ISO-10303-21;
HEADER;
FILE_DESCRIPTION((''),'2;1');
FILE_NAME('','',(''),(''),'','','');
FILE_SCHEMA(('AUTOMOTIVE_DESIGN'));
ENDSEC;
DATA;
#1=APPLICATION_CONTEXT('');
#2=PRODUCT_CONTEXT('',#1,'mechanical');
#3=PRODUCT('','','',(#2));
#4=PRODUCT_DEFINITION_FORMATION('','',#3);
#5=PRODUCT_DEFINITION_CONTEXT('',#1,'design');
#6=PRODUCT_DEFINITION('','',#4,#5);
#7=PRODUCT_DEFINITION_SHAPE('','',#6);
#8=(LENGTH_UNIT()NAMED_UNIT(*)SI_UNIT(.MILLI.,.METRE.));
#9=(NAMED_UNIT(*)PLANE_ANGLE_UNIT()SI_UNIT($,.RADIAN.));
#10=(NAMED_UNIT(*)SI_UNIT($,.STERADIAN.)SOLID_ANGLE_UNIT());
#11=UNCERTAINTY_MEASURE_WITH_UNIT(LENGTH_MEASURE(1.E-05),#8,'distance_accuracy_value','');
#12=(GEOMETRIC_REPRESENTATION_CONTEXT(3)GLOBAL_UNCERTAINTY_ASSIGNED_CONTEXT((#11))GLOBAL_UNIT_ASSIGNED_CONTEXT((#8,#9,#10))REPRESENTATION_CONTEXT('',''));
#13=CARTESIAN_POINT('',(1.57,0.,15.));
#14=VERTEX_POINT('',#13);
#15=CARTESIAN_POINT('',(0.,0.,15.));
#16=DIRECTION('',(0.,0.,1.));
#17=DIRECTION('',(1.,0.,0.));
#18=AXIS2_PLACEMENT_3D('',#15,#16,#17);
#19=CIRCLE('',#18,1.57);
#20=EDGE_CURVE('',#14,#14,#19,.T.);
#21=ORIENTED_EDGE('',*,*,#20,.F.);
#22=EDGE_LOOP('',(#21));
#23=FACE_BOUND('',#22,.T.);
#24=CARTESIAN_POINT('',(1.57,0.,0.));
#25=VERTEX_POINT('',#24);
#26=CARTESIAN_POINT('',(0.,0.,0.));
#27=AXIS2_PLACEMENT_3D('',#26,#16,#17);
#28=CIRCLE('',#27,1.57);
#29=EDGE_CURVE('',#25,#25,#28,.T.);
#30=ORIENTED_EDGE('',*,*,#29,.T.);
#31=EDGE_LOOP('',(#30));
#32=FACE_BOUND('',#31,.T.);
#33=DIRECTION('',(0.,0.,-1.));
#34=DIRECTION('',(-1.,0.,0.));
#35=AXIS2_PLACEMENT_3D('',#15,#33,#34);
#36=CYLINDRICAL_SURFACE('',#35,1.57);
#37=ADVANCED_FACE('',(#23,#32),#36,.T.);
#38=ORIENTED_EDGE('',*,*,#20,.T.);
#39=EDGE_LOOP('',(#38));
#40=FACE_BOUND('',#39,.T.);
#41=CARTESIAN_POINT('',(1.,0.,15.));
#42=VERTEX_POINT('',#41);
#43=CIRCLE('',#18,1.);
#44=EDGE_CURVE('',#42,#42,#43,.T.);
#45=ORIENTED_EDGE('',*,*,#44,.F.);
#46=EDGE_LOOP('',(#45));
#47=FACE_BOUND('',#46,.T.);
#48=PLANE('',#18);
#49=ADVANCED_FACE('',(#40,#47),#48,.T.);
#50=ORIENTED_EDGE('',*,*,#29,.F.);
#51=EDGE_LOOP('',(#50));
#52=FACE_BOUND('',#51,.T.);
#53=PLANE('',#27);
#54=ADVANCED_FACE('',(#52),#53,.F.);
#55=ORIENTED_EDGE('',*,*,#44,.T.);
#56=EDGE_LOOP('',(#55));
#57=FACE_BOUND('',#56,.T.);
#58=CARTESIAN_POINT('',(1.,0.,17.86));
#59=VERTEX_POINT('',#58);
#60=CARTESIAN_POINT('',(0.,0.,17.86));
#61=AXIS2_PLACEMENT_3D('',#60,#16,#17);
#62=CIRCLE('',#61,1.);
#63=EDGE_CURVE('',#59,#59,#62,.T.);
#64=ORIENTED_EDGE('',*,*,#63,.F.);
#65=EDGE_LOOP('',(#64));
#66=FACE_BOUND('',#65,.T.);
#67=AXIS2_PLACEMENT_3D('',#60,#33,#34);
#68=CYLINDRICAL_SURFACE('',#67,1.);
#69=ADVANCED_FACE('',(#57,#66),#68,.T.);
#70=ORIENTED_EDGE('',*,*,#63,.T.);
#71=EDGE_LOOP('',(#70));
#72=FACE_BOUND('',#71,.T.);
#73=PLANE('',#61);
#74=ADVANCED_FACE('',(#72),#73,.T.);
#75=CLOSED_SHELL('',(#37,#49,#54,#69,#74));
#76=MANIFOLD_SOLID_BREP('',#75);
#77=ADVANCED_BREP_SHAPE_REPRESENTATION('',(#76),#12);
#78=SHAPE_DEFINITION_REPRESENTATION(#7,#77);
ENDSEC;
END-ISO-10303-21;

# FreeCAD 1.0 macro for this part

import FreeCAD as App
import Part
import Sketcher

V = App.Vector

doc = App.newDocument("Part")
params = doc.addObject("Spreadsheet::Sheet", "Params")
for row, (alias, value) in enumerate([
    ("sketch1_diameter", "2 mm"),
    ("pad1_length", "17.86 mm"),
    ("sketch2_diameter", "3.14 mm"),
    ("pad2_length", "15 mm"),
], start=1):
    params.set(f"A{row}", alias)
    params.set(f"B{row}", "=" + value)
    params.setAlias(f"B{row}", alias)

body = doc.addObject("PartDesign::Body", "Body")

# Sketch on XY plane
sketch1 = body.newObject("Sketcher::SketchObject", "Sketch")
sketch1.AttachmentSupport = (doc.getObject("XY_Plane"), [""])
sketch1.MapMode = "FlatFace"
sketch1.addGeometry(Part.Circle(V(0, 0, 0), V(0, 0, 1), 1), False)
sketch1.addConstraint([
    Sketcher.Constraint("Coincident", 0, 3, -1, 1),
    Sketcher.Constraint("Diameter", 0, 2.0),
])
sketch1.setExpression("Constraints[1]", "Params.sketch1_diameter")
pad1 = body.newObject("PartDesign::Pad", "Pad")
pad1.Profile = sketch1
pad1.setExpression("Length", "Params.pad1_length")

# Sketch on XY plane
sketch2 = body.newObject("Sketcher::SketchObject", "Sketch001")
sketch2.AttachmentSupport = (doc.getObject("XY_Plane"), [""])
sketch2.MapMode = "FlatFace"
sketch2.addGeometry(Part.Circle(V(0, 0, 0), V(0, 0, 1), 1.6), False)
sketch2.addConstraint([
    Sketcher.Constraint("Coincident", 0, 3, -1, 1),
    Sketcher.Constraint("Diameter", 0, 3.14),
])
sketch2.setExpression("Constraints[1]", "Params.sketch2_diameter")
pad2 = body.newObject("PartDesign::Pad", "Pad001")
pad2.Profile = sketch2
pad2.setExpression("Length", "Params.pad2_length")

doc.recompute()
